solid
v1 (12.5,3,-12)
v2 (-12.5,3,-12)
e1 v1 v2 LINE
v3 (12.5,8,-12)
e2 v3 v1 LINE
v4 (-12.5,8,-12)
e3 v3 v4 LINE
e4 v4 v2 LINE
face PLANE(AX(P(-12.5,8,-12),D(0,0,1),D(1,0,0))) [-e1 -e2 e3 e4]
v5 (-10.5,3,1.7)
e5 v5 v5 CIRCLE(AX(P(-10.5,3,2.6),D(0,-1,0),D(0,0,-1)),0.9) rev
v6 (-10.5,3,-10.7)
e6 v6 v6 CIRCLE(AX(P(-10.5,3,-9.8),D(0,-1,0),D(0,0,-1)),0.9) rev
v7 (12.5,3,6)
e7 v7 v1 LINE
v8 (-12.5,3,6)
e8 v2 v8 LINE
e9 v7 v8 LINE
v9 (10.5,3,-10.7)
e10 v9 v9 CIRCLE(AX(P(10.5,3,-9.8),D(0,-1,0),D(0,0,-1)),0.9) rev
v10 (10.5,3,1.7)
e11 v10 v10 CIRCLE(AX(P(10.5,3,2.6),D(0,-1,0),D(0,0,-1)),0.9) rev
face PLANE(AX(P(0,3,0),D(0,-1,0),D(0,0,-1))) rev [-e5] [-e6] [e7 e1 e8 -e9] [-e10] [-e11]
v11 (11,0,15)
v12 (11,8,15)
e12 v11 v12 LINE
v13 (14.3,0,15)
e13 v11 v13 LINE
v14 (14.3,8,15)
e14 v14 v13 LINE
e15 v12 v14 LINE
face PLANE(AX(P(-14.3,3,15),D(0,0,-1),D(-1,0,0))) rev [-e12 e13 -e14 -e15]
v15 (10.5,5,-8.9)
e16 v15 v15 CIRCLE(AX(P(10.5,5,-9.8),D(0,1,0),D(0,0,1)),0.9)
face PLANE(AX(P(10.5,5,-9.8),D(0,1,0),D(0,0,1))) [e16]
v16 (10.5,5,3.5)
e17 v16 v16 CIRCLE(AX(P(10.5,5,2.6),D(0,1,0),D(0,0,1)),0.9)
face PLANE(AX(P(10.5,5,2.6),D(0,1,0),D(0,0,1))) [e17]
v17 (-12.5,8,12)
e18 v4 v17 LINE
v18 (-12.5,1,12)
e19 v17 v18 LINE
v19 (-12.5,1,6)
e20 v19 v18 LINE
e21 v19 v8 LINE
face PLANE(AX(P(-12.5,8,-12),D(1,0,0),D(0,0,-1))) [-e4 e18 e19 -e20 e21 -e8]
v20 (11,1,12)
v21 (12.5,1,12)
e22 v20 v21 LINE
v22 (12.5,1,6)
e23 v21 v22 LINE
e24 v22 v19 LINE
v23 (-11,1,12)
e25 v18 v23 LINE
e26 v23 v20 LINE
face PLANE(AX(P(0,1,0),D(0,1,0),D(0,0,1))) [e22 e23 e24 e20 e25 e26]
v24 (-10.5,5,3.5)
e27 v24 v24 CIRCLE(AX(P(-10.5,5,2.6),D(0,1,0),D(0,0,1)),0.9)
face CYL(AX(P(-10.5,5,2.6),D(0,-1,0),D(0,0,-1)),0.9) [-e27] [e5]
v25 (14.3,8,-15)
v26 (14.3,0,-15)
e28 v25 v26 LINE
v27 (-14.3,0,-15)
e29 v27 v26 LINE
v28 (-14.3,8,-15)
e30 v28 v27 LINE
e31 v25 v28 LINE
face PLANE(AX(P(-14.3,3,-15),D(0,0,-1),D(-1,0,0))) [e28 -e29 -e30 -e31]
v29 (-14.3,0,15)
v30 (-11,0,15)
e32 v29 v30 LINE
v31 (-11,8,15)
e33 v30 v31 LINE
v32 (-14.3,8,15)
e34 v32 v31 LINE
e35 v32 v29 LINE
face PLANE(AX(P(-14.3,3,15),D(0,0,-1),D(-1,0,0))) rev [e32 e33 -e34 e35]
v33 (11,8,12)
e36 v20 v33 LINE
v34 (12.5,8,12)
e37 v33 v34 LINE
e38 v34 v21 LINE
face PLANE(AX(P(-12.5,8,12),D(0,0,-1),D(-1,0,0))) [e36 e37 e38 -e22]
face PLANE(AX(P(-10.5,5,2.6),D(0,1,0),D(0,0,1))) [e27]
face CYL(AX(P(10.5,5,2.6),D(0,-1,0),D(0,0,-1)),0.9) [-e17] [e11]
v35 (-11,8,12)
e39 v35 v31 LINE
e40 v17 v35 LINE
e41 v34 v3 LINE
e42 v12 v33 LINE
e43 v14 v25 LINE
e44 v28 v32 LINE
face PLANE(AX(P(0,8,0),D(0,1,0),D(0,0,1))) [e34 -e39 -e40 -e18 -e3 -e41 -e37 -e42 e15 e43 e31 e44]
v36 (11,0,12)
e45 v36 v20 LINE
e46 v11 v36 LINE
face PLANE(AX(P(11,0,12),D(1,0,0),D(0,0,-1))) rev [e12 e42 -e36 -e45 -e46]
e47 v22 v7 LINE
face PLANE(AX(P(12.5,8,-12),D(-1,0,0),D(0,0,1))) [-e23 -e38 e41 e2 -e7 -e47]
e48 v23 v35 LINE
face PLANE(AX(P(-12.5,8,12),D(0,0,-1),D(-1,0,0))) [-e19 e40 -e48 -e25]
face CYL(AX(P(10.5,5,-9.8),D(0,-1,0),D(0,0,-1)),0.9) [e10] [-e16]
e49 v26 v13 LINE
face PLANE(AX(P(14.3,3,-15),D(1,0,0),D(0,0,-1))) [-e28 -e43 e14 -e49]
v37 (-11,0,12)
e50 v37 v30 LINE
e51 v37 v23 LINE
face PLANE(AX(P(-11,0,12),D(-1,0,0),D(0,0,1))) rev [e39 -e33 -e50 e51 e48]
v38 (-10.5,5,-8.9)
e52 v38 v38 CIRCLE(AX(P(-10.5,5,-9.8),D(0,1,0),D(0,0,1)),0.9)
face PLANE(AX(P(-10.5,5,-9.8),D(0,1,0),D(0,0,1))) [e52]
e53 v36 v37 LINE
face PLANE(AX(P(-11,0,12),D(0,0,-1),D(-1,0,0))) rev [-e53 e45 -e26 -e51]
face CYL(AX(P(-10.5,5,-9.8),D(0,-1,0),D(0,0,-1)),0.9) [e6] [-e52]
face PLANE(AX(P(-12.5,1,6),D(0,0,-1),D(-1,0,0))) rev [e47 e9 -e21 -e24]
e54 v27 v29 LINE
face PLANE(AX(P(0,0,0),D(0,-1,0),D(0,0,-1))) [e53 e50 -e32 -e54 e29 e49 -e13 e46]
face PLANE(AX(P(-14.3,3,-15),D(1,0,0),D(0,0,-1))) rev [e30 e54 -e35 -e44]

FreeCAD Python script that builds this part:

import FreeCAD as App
import Part
import Sketcher
Q = App.Units.Quantity

doc = App.newDocument("Part")
body = doc.addObject("PartDesign::Body", "Body")

# Sketch on XZ plane
sketch1 = body.newObject("Sketcher::SketchObject", "Sketch")
sketch1.AttachmentSupport = (doc.getObject("XZ_Plane"), [""])
sketch1.MapMode = "FlatFace"
sketch1.addGeometry([
    Part.LineSegment(App.Vector(-14.3, -15, 0), App.Vector(-14.3, 15, 0)),
    Part.LineSegment(App.Vector(-14.3, 15, 0), App.Vector(14.3, 15, 0)),
    Part.LineSegment(App.Vector(14.3, 15, 0), App.Vector(14.3, -15, 0)),
    Part.LineSegment(App.Vector(14.3, -15, 0), App.Vector(-14.3, -15, 0)),
], False)
sketch1.addConstraint([
    Sketcher.Constraint("Coincident", 0, 2, 1, 1),
    Sketcher.Constraint("Coincident", 1, 2, 2, 1),
    Sketcher.Constraint("Coincident", 2, 2, 3, 1),
    Sketcher.Constraint("Coincident", 3, 2, 0, 1),
    Sketcher.Constraint("Vertical", 0),
    Sketcher.Constraint("Horizontal", 1),
    Sketcher.Constraint("Vertical", 2),
    Sketcher.Constraint("Horizontal", 3),
    Sketcher.Constraint("Symmetric", 0, 2, 2, 2, -1, 1),
    Sketcher.Constraint("DistanceY", 0, 1, 0, 2, Q("30 mm")),
    Sketcher.Constraint("DistanceX", 1, 1, 1, 2, Q("28.6 mm")),
])
pad1 = body.newObject("PartDesign::Pad", "Pad")
pad1.Profile = sketch1
pad1.Length = 3
pad1.Reversed = True

# Sketch on XZ plane
sketch2 = body.newObject("Sketcher::SketchObject", "Sketch001")
sketch2.AttachmentSupport = (doc.getObject("XZ_Plane"), [""])
sketch2.MapMode = "FlatFace"
sketch2.addGeometry([
    Part.LineSegment(App.Vector(-14.3, -15, 0), App.Vector(-14.3, 15, 0)),  # 0
    Part.LineSegment(App.Vector(-14.3, 15, 0), App.Vector(14.3, 15, 0)),  # 1
    Part.LineSegment(App.Vector(14.3, 15, 0), App.Vector(14.3, -15, 0)),  # 2
    Part.LineSegment(App.Vector(14.3, -15, 0), App.Vector(-14.3, -15, 0)),  # 3
    Part.LineSegment(App.Vector(12.5, 12, 0), App.Vector(-12.5, 12, 0)),  # 4
    Part.LineSegment(App.Vector(-12.5, 12, 0), App.Vector(-12.5, -12, 0)),  # 5
    Part.LineSegment(App.Vector(-12.5, -12, 0), App.Vector(12.5, -12, 0)),  # 6
    Part.LineSegment(App.Vector(12.5, -12, 0), App.Vector(12.5, 12, 0)),  # 7
], False)
sketch2.addConstraint([
    Sketcher.Constraint("Coincident", 0, 2, 1, 1),
    Sketcher.Constraint("Coincident", 1, 2, 2, 1),
    Sketcher.Constraint("Coincident", 2, 2, 3, 1),
    Sketcher.Constraint("Coincident", 3, 2, 0, 1),
    Sketcher.Constraint("Coincident", 4, 2, 5, 1),
    Sketcher.Constraint("Coincident", 5, 2, 6, 1),
    Sketcher.Constraint("Coincident", 6, 2, 7, 1),
    Sketcher.Constraint("Coincident", 7, 2, 4, 1),
    Sketcher.Constraint("Vertical", 0),
    Sketcher.Constraint("Horizontal", 1),
    Sketcher.Constraint("Vertical", 2),
    Sketcher.Constraint("Horizontal", 3),
    Sketcher.Constraint("Horizontal", 4),
    Sketcher.Constraint("Vertical", 5),
    Sketcher.Constraint("Horizontal", 6),
    Sketcher.Constraint("Vertical", 7),
    Sketcher.Constraint("Symmetric", 0, 2, 2, 2, -1, 1),
    Sketcher.Constraint("Symmetric", 4, 2, 6, 2, -1, 1),
    Sketcher.Constraint("DistanceX", 4, 2, 4, 1, Q("25 mm")),
    Sketcher.Constraint("DistanceY", 0, 1, 0, 2, Q("30 mm")),
    Sketcher.Constraint("DistanceY", 5, 2, 5, 1, Q("24 mm")),
    Sketcher.Constraint("DistanceX", 1, 1, 1, 2, Q("28.6 mm")),
])
pad2 = body.newObject("PartDesign::Pad", "Pad001")
pad2.Profile = sketch2
pad2.Length = 8
pad2.Reversed = True

# Sketch on XZ plane
sketch3 = body.newObject("Sketcher::SketchObject", "Sketch002")
sketch3.AttachmentSupport = (doc.getObject("XZ_Plane"), [""])
sketch3.MapMode = "FlatFace"
sketch3.AttachmentOffset = App.Placement(App.Vector(0, 0, -8), App.Rotation())
sketch3.addGeometry([
    Part.LineSegment(App.Vector(-11, 12, 0), App.Vector(-11, 15, 0)),
    Part.LineSegment(App.Vector(-11, 15, 0), App.Vector(11, 15, 0)),
    Part.LineSegment(App.Vector(11, 15, 0), App.Vector(11, 12, 0)),
    Part.LineSegment(App.Vector(11, 12, 0), App.Vector(-11, 12, 0)),
], False)
sketch3.addConstraint([
    Sketcher.Constraint("Coincident", 0, 2, 1, 1),
    Sketcher.Constraint("Coincident", 1, 2, 2, 1),
    Sketcher.Constraint("Coincident", 2, 2, 3, 1),
    Sketcher.Constraint("Coincident", 3, 2, 0, 1),
    Sketcher.Constraint("Vertical", 0),
    Sketcher.Constraint("Horizontal", 1),
    Sketcher.Constraint("Vertical", 2),
    Sketcher.Constraint("Horizontal", 3),
    Sketcher.Constraint("DistanceX", 1, 1, 1, 2, Q("22 mm")),
    Sketcher.Constraint("DistanceY", 0, 1, 0, 2, Q("3 mm")),
    Sketcher.Constraint("DistanceX", 0, 2, -1, 1, Q("11 mm")),
    Sketcher.Constraint("DistanceY", -1, 1, 0, 2, Q("15 mm")),
])
pocket1 = body.newObject("PartDesign::Pocket", "Pocket")
pocket1.Profile = sketch3
pocket1.Length = 8
pocket1.Reversed = True

# Sketch on XZ plane
sketch4 = body.newObject("Sketcher::SketchObject", "Sketch003")
sketch4.AttachmentSupport = (doc.getObject("XZ_Plane"), [""])
sketch4.MapMode = "FlatFace"
sketch4.AttachmentOffset = App.Placement(App.Vector(0, 0, -3), App.Rotation())
sketch4.addGeometry([
    Part.LineSegment(App.Vector(-12.5, 6, 0), App.Vector(-12.5, 12, 0)),
    Part.LineSegment(App.Vector(-12.5, 12, 0), App.Vector(12.5, 12, 0)),
    Part.LineSegment(App.Vector(12.5, 12, 0), App.Vector(12.5, 6, 0)),
    Part.LineSegment(App.Vector(12.5, 6, 0), App.Vector(-12.5, 6, 0)),
], False)
sketch4.addConstraint([
    Sketcher.Constraint("Coincident", 0, 2, 1, 1),
    Sketcher.Constraint("Coincident", 1, 2, 2, 1),
    Sketcher.Constraint("Coincident", 2, 2, 3, 1),
    Sketcher.Constraint("Coincident", 3, 2, 0, 1),
    Sketcher.Constraint("Vertical", 0),
    Sketcher.Constraint("Horizontal", 1),
    Sketcher.Constraint("Vertical", 2),
    Sketcher.Constraint("Horizontal", 3),
    Sketcher.Constraint("DistanceX", 1, 1, 1, 2, Q("25 mm")),
    Sketcher.Constraint("DistanceY", 0, 1, 0, 2, Q("6 mm")),
    Sketcher.Constraint("DistanceY", -1, 1, 0, 2, Q("12 mm")),
    Sketcher.Constraint("DistanceX", 0, 2, -1, 1, Q("12.5 mm")),
])
pocket2 = body.newObject("PartDesign::Pocket", "Pocket001")
pocket2.Profile = sketch4
pocket2.Length = 2
pocket2.Reversed = True

# Sketch on XZ plane
sketch5 = body.newObject("Sketcher::SketchObject", "Sketch004")
sketch5.AttachmentSupport = (doc.getObject("XZ_Plane"), [""])
sketch5.MapMode = "FlatFace"
sketch5.AttachmentOffset = App.Placement(App.Vector(0, 0, -3), App.Rotation())
sketch5.addGeometry([
    Part.Circle(App.Vector(-10.5, -9.8, 0), App.Vector(0, 0, 1), 0.9),
    Part.Circle(App.Vector(-10.5, 2.6, 0), App.Vector(0, 0, 1), 0.9),
    Part.Circle(App.Vector(10.5, -9.8, 0), App.Vector(0, 0, 1), 0.9),
    Part.Circle(App.Vector(10.5, 2.6, 0), App.Vector(0, 0, 1), 0.9),
], False)
sketch5.addConstraint([
    Sketcher.Constraint("Equal", 0, 1),
    Sketcher.Constraint("Equal", 1, 2),
    Sketcher.Constraint("Equal", 2, 3),
    Sketcher.Constraint("Symmetric", 0, 3, 2, 3, -2),
    Sketcher.Constraint("Symmetric", 1, 3, 3, 3, -2),
    Sketcher.Constraint("Vertical", 0, 3, 1, 3),
    Sketcher.Constraint("Diameter", 0, Q("1.8 mm")),
    Sketcher.Constraint("DistanceX", 0, 3, 2, 3, Q("21 mm")),
    Sketcher.Constraint("DistanceY", 0, 3, -1, 1, Q("9.8 mm")),
    Sketcher.Constraint("DistanceY", -1, 1, 1, 3, Q("2.6 mm")),
])
pad3 = body.newObject("PartDesign::Pad", "Pad002")
pad3.Profile = sketch5
pad3.Length = 2
pad3.Reversed = True

doc.recompute()
